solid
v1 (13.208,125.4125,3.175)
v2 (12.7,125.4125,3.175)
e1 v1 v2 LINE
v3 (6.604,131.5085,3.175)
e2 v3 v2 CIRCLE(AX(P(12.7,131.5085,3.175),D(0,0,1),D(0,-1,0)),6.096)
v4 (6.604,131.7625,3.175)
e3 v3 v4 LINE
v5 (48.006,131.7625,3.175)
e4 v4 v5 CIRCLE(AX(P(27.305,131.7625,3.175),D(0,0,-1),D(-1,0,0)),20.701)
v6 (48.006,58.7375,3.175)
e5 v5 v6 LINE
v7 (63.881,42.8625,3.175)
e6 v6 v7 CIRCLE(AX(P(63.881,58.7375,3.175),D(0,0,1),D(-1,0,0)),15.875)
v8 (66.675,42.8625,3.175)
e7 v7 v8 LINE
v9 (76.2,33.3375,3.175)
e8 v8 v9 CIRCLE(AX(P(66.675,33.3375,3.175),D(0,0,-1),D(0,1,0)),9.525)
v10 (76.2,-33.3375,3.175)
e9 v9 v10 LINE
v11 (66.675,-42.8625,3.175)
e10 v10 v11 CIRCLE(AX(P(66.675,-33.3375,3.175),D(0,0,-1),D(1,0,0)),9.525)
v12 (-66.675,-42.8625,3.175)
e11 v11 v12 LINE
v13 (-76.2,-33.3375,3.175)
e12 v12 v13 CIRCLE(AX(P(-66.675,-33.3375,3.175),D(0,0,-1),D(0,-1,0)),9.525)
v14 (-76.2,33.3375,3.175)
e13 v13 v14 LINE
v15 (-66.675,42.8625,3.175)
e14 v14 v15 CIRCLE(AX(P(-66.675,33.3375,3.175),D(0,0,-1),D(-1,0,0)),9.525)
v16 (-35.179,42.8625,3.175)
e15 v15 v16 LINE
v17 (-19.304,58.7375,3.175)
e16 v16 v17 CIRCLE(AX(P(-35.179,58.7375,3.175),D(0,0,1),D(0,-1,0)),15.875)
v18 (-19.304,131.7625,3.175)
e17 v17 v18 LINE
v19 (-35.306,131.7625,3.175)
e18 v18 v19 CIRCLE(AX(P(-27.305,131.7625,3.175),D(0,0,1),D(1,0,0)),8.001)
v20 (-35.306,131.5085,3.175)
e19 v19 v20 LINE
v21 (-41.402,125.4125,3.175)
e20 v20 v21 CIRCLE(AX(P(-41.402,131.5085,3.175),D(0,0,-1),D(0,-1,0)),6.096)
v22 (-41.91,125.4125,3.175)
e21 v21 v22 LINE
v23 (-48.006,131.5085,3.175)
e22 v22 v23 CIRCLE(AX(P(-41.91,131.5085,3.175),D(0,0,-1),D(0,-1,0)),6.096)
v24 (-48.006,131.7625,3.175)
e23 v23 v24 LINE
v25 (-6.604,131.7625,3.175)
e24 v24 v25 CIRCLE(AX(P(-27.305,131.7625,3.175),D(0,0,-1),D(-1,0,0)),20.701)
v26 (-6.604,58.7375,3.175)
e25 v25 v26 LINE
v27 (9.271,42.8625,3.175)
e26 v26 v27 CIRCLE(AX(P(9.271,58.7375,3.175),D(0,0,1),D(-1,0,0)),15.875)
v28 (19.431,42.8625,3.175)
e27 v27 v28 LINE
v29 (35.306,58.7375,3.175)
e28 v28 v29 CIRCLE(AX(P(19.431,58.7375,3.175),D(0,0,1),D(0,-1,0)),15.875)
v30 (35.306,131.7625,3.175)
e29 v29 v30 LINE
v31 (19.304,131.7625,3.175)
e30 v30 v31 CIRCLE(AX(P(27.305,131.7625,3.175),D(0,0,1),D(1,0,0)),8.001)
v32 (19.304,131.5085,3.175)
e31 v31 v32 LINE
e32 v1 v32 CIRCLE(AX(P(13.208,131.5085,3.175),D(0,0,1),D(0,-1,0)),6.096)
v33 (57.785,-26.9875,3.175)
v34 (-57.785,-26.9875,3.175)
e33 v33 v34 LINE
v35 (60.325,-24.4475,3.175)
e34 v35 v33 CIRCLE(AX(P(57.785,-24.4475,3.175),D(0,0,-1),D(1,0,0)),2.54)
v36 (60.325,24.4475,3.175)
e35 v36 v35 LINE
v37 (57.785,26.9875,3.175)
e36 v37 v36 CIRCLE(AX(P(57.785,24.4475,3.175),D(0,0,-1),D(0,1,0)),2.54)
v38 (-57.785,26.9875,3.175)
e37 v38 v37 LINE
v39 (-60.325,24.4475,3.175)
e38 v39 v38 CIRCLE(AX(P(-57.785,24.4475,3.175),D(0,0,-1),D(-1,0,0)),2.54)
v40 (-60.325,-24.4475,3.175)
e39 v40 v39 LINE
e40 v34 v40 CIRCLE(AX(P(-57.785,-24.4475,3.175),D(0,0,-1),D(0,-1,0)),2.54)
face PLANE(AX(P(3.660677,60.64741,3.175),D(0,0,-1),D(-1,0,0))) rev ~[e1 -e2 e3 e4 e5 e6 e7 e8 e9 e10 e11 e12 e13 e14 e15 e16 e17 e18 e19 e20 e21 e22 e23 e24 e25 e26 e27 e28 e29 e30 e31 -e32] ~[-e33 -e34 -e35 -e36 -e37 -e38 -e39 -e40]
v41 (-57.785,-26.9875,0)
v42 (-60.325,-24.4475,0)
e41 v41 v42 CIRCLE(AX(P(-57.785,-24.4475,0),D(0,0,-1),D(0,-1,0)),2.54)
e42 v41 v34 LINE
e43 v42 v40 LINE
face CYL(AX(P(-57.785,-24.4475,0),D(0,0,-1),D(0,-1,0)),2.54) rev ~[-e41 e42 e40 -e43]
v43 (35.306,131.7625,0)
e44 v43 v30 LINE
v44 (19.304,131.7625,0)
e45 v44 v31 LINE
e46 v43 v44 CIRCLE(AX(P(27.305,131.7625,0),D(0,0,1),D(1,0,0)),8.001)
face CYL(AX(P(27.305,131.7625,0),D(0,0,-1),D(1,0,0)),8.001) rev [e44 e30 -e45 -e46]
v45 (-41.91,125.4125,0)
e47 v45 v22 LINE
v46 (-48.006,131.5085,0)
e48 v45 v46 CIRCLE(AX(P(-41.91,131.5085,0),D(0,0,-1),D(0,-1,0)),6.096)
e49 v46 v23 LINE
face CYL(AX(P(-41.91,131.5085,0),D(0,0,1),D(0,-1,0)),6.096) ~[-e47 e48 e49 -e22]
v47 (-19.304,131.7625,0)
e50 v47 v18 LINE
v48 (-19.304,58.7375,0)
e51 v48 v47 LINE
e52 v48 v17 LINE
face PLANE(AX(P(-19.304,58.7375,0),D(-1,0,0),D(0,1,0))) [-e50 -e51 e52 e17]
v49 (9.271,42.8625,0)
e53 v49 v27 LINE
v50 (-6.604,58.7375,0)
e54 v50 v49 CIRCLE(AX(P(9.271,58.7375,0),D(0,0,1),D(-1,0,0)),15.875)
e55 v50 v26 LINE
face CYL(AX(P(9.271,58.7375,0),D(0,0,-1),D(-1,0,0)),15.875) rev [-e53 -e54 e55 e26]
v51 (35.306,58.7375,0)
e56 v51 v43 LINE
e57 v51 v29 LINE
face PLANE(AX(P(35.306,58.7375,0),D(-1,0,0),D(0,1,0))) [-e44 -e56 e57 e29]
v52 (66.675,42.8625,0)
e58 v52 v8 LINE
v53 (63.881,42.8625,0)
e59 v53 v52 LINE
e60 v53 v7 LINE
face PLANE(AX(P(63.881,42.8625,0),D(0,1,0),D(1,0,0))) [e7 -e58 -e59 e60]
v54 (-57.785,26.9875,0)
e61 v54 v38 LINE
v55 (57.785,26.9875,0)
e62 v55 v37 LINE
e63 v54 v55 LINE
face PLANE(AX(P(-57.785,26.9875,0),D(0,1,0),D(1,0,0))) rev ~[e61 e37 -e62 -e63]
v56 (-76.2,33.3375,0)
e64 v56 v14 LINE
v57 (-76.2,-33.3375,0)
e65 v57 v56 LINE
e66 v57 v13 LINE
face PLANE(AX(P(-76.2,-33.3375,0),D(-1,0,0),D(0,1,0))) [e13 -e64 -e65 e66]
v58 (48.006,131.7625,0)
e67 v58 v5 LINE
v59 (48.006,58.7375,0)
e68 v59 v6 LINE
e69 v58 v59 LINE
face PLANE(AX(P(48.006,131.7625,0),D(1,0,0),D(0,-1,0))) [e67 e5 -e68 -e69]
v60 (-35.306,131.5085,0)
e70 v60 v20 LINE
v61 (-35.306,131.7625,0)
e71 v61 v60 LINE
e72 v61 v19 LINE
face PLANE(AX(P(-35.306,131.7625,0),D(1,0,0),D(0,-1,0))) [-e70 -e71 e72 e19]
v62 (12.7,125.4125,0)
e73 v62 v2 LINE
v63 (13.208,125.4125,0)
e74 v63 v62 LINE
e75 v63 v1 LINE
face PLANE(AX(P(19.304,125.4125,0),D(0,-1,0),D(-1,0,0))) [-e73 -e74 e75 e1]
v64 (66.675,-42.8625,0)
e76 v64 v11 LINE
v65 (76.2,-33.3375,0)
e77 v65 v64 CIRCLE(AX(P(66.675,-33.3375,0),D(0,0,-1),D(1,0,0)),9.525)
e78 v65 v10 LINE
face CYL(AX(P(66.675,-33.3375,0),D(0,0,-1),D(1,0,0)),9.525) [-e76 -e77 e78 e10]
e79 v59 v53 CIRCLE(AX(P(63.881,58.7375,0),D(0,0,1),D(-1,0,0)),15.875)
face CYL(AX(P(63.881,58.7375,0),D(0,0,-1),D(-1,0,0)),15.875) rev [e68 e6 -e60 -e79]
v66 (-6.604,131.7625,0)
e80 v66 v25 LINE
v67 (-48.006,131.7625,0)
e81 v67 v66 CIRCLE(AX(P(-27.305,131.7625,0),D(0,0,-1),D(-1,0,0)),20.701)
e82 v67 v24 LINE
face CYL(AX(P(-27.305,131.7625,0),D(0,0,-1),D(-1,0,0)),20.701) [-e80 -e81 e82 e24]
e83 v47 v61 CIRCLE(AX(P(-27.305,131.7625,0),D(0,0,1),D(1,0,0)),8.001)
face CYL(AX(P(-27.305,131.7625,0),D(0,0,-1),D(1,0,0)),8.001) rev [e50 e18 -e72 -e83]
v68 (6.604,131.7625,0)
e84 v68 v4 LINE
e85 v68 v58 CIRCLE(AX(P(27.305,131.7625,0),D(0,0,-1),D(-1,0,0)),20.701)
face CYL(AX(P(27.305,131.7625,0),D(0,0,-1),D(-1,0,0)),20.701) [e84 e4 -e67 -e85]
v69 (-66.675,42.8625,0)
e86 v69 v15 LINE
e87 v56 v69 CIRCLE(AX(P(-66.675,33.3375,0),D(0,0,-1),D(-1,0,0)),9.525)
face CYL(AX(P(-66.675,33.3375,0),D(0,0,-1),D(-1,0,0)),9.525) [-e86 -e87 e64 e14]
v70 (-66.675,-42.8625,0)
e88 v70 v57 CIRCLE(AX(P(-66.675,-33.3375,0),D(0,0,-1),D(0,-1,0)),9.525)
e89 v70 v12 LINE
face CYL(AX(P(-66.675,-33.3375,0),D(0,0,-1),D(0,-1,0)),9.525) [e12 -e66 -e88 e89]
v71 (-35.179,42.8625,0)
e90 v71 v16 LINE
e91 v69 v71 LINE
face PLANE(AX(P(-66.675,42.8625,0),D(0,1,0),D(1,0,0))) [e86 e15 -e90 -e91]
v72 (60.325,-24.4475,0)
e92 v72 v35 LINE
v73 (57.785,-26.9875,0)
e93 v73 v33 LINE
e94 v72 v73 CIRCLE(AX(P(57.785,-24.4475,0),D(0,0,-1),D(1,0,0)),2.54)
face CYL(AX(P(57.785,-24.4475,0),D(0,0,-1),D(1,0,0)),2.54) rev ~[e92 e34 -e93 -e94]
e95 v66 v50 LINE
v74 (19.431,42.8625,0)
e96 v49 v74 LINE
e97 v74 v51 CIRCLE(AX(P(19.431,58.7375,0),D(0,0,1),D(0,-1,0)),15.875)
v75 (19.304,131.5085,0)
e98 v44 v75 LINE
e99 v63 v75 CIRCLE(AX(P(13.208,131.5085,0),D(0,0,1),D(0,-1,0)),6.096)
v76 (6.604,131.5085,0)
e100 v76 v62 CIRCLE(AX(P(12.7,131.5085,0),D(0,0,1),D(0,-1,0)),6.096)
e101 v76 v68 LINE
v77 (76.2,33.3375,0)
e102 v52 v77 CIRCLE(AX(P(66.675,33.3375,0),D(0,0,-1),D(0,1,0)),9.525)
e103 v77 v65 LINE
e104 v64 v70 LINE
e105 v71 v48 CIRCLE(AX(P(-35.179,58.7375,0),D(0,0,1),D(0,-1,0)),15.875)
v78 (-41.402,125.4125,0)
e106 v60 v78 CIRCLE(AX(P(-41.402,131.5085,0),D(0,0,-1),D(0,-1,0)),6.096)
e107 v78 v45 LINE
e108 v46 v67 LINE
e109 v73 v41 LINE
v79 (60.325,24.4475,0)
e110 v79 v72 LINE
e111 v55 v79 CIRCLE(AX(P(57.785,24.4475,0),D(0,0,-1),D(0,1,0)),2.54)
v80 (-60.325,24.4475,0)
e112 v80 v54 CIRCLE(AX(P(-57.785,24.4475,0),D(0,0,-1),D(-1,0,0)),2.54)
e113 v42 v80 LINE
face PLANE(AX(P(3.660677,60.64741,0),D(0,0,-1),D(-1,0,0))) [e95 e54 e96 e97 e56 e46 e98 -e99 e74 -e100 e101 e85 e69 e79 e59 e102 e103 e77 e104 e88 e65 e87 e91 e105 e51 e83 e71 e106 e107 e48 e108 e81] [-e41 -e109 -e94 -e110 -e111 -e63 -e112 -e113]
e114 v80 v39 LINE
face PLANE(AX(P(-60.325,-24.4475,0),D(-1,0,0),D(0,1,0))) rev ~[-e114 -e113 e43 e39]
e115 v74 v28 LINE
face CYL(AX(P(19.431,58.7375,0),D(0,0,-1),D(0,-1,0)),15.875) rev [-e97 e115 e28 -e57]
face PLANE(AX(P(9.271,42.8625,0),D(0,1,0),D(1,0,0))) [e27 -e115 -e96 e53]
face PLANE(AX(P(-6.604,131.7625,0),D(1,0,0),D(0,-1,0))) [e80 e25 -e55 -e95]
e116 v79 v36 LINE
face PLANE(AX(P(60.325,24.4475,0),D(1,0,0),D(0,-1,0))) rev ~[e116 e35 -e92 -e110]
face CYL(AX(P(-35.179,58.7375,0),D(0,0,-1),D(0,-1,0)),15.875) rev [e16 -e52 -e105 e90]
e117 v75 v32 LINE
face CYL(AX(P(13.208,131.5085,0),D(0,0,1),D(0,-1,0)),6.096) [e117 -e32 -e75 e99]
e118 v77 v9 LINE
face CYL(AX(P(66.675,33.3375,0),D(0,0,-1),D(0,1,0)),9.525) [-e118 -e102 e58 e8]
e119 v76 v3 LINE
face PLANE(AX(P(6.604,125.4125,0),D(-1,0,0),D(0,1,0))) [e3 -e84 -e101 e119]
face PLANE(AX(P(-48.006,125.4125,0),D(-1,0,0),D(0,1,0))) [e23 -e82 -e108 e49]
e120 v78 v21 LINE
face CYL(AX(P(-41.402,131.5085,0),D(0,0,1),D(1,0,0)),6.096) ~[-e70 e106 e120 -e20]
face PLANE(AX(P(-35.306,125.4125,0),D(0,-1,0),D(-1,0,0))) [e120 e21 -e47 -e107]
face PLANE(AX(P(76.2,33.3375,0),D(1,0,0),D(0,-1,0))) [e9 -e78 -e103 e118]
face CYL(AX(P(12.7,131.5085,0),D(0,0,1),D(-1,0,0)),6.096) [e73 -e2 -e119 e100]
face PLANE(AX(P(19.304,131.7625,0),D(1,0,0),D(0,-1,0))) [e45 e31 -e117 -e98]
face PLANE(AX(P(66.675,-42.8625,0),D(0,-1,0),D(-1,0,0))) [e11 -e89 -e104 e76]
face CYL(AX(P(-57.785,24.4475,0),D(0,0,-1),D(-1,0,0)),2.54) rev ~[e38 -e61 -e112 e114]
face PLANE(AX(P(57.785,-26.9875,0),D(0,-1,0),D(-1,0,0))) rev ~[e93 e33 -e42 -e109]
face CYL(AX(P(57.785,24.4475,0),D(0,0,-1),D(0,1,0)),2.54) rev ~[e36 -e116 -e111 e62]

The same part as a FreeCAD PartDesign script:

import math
import FreeCAD as App
import Part
import Sketcher

V = App.Vector
Q = App.Units.Quantity


def edges_at(feature, points):
    """Names of the edges that pass closest to the given points."""
    edges = feature.Shape.Edges
    near = lambda p: min(range(len(edges)), key=lambda i: edges[i].distToShape(Part.Vertex(*p))[0])
    return sorted({f"Edge{near(p) + 1}" for p in points})

doc = App.newDocument("Part")
params = doc.addObject("Spreadsheet::Sheet", "Params")
for row, (alias, value) in enumerate([
    ("sketch1_radius", "0.1 in"),
    ("sketch1_width", "0.5 in"),
    ("sketch1_width2", "0.4 in"),
    ("sketch1_radius2", "0.375 in"),
    ("sketch1_radius3", "0.625 in"),
    ("pad1_length", "0.125 in"),
    ("fillet_radius", "0.24 in"),
], start=1):
    params.set(f"A{row}", alias)
    params.set(f"B{row}", "=" + value)
    params.setAlias(f"B{row}", alias)

body = doc.addObject("PartDesign::Body", "Body")

# Sketch on XY plane
sketch1 = body.newObject("Sketcher::SketchObject", "Sketch")
sketch1.AttachmentSupport = (doc.getObject("XY_Plane"), [""])
sketch1.MapMode = "FlatFace"
sketch1.addGeometry(Part.LineSegment(V(-35.2, 42.9, 0), V(-66.7, 42.9, 0)), False)
sketch1.addGeometry(Part.ArcOfCircle(Part.Circle(V(-66.7, 33.3, 0), V(0, 0, 1), 9.5), math.radians(90), math.radians(180)), False)
sketch1.addGeometry(Part.LineSegment(V(-76.2, 33.3, 0), V(-76.2, -33.3, 0)), False)
sketch1.addGeometry(Part.ArcOfCircle(Part.Circle(V(-66.7, -33.3, 0), V(0, 0, 1), 9.5), math.radians(180), math.radians(270)), False)
sketch1.addGeometry(Part.LineSegment(V(-66.7, -42.9, 0), V(66.7, -42.9, 0)), False)
sketch1.addGeometry(Part.ArcOfCircle(Part.Circle(V(66.7, -33.3, 0), V(0, 0, 1), 9.5), math.radians(-90), math.radians(0)), False)
sketch1.addGeometry(Part.LineSegment(V(76.2, -33.3, 0), V(76.2, 33.3, 0)), False)
sketch1.addGeometry(Part.ArcOfCircle(Part.Circle(V(66.7, 33.3, 0), V(0, 0, 1), 9.5), math.radians(0), math.radians(90)), False)
sketch1.addGeometry(Part.LineSegment(V(66.7, 42.9, 0), V(63.9, 42.9, 0)), False)
sketch1.addGeometry(Part.ArcOfCircle(Part.Circle(V(63.9, 58.7, 0), V(0, 0, 1), 15.9), math.radians(-180), math.radians(-90)), False)
sketch1.addGeometry(Part.LineSegment(V(48, 58.7, 0), V(48, 131.8, 0)), False)
sketch1.addGeometry(Part.ArcOfCircle(Part.Circle(V(27.3, 131.8, 0), V(0, 0, 1), 20.7), math.radians(0), math.radians(180)), False)
sketch1.addGeometry(Part.LineSegment(V(6.6, 131.8, 0), V(6.6, 125.4, 0)), False)
sketch1.addGeometry(Part.LineSegment(V(6.6, 125.4, 0), V(19.3, 125.4, 0)), False)
sketch1.addGeometry(Part.LineSegment(V(19.3, 125.4, 0), V(19.3, 131.8, 0)), False)
sketch1.addGeometry(Part.ArcOfCircle(Part.Circle(V(27.3, 131.8, 0), V(0, 0, 1), 8), math.radians(0), math.radians(180)), False)
sketch1.addGeometry(Part.LineSegment(V(35.3, 131.8, 0), V(35.3, 58.7, 0)), False)
sketch1.addGeometry(Part.ArcOfCircle(Part.Circle(V(19.4, 58.7, 0), V(0, 0, 1), 15.9), math.radians(-90), math.radians(0)), False)
sketch1.addGeometry(Part.LineSegment(V(19.4, 42.9, 0), V(9.3, 42.9, 0)), False)
sketch1.addGeometry(Part.ArcOfCircle(Part.Circle(V(9.3, 58.7, 0), V(0, 0, 1), 15.9), math.radians(-180), math.radians(-90)), False)
sketch1.addGeometry(Part.LineSegment(V(-6.6, 58.7, 0), V(-6.6, 131.8, 0)), False)
sketch1.addGeometry(Part.ArcOfCircle(Part.Circle(V(-27.3, 131.8, 0), V(0, 0, 1), 20.7), math.radians(0), math.radians(180)), False)
sketch1.addGeometry(Part.LineSegment(V(-48, 131.8, 0), V(-48, 125.4, 0)), False)
sketch1.addGeometry(Part.LineSegment(V(-48, 125.4, 0), V(-35.3, 125.4, 0)), False)
sketch1.addGeometry(Part.LineSegment(V(-35.3, 125.4, 0), V(-35.3, 131.8, 0)), False)
sketch1.addGeometry(Part.ArcOfCircle(Part.Circle(V(-27.3, 131.8, 0), V(0, 0, 1), 8), math.radians(0), math.radians(180)), False)
sketch1.addGeometry(Part.LineSegment(V(-19.3, 131.8, 0), V(-19.3, 58.7, 0)), False)
sketch1.addGeometry(Part.ArcOfCircle(Part.Circle(V(-35.2, 58.7, 0), V(0, 0, 1), 15.9), math.radians(-90), math.radians(0)), False)
sketch1.addGeometry(Part.LineSegment(V(-57.8, 27, 0), V(57.8, 27, 0)), False)
sketch1.addGeometry(Part.ArcOfCircle(Part.Circle(V(57.8, 24.4, 0), V(0, 0, 1), 2.5), math.radians(0), math.radians(90)), False)
sketch1.addGeometry(Part.LineSegment(V(60.3, 24.4, 0), V(60.3, -24.4, 0)), False)
sketch1.addGeometry(Part.ArcOfCircle(Part.Circle(V(57.8, -24.4, 0), V(0, 0, 1), 2.5), math.radians(-90), math.radians(0)), False)
sketch1.addGeometry(Part.LineSegment(V(57.8, -27, 0), V(-57.8, -27, 0)), False)
sketch1.addGeometry(Part.ArcOfCircle(Part.Circle(V(-57.8, -24.4, 0), V(0, 0, 1), 2.5), math.radians(-180), math.radians(-90)), False)
sketch1.addGeometry(Part.LineSegment(V(-60.3, -24.4, 0), V(-60.3, 24.4, 0)), False)
sketch1.addGeometry(Part.ArcOfCircle(Part.Circle(V(-57.8, 24.4, 0), V(0, 0, 1), 2.5), math.radians(90), math.radians(180)), False)
sketch1.addConstraint(Sketcher.Constraint("Tangent", 0, 2, 1, 1))
sketch1.addConstraint(Sketcher.Constraint("Tangent", 1, 2, 2, 1))
sketch1.addConstraint(Sketcher.Constraint("Tangent", 2, 2, 3, 1))
sketch1.addConstraint(Sketcher.Constraint("Tangent", 3, 2, 4, 1))
sketch1.addConstraint(Sketcher.Constraint("Tangent", 4, 2, 5, 1))
sketch1.addConstraint(Sketcher.Constraint("Tangent", 5, 2, 6, 1))
sketch1.addConstraint(Sketcher.Constraint("Tangent", 6, 2, 7, 1))
sketch1.addConstraint(Sketcher.Constraint("Tangent", 7, 2, 8, 1))
sketch1.addConstraint(Sketcher.Constraint("Tangent", 8, 2, 9, 2))
sketch1.addConstraint(Sketcher.Constraint("Tangent", 9, 1, 10, 1))
sketch1.addConstraint(Sketcher.Constraint("Tangent", 10, 2, 11, 1))
sketch1.addConstraint(Sketcher.Constraint("Tangent", 11, 2, 12, 1))
sketch1.addConstraint(Sketcher.Constraint("Coincident", 12, 2, 13, 1))
sketch1.addConstraint(Sketcher.Constraint("Coincident", 13, 2, 14, 1))
sketch1.addConstraint(Sketcher.Constraint("Tangent", 14, 2, 15, 2))
sketch1.addConstraint(Sketcher.Constraint("Tangent", 15, 1, 16, 1))
sketch1.addConstraint(Sketcher.Constraint("Tangent", 16, 2, 17, 2))
sketch1.addConstraint(Sketcher.Constraint("Tangent", 17, 1, 18, 1))
sketch1.addConstraint(Sketcher.Constraint("Tangent", 18, 2, 19, 2))
sketch1.addConstraint(Sketcher.Constraint("Tangent", 19, 1, 20, 1))
sketch1.addConstraint(Sketcher.Constraint("Tangent", 20, 2, 21, 1))
sketch1.addConstraint(Sketcher.Constraint("Tangent", 21, 2, 22, 1))
sketch1.addConstraint(Sketcher.Constraint("Coincident", 22, 2, 23, 1))
sketch1.addConstraint(Sketcher.Constraint("Coincident", 23, 2, 24, 1))
sketch1.addConstraint(Sketcher.Constraint("Tangent", 24, 2, 25, 2))
sketch1.addConstraint(Sketcher.Constraint("Tangent", 25, 1, 26, 1))
sketch1.addConstraint(Sketcher.Constraint("Tangent", 26, 2, 27, 2))
sketch1.addConstraint(Sketcher.Constraint("Tangent", 27, 1, 0, 1))
sketch1.addConstraint(Sketcher.Constraint("Tangent", 28, 2, 29, 2))
sketch1.addConstraint(Sketcher.Constraint("Tangent", 29, 1, 30, 1))
sketch1.addConstraint(Sketcher.Constraint("Tangent", 30, 2, 31, 2))
sketch1.addConstraint(Sketcher.Constraint("Tangent", 31, 1, 32, 1))
sketch1.addConstraint(Sketcher.Constraint("Tangent", 32, 2, 33, 2))
sketch1.addConstraint(Sketcher.Constraint("Tangent", 33, 1, 34, 1))
sketch1.addConstraint(Sketcher.Constraint("Tangent", 34, 2, 35, 2))
sketch1.addConstraint(Sketcher.Constraint("Tangent", 35, 1, 28, 1))
sketch1.addConstraint(Sketcher.Constraint("Horizontal", 0))
sketch1.addConstraint(Sketcher.Constraint("Vertical", 2))
sketch1.addConstraint(Sketcher.Constraint("Horizontal", 4))
sketch1.addConstraint(Sketcher.Constraint("Vertical", 6))
sketch1.addConstraint(Sketcher.Constraint("Horizontal", 8))
sketch1.addConstraint(Sketcher.Constraint("Vertical", 10))
sketch1.addConstraint(Sketcher.Constraint("Vertical", 12))
sketch1.addConstraint(Sketcher.Constraint("Horizontal", 13))
sketch1.addConstraint(Sketcher.Constraint("Vertical", 14))
sketch1.addConstraint(Sketcher.Constraint("Vertical", 16))
sketch1.addConstraint(Sketcher.Constraint("Horizontal", 18))
sketch1.addConstraint(Sketcher.Constraint("Vertical", 20))
sketch1.addConstraint(Sketcher.Constraint("Vertical", 22))
sketch1.addConstraint(Sketcher.Constraint("Horizontal", 23))
sketch1.addConstraint(Sketcher.Constraint("Vertical", 24))
sketch1.addConstraint(Sketcher.Constraint("Vertical", 26))
sketch1.addConstraint(Sketcher.Constraint("Horizontal", 28))
sketch1.addConstraint(Sketcher.Constraint("Vertical", 30))
sketch1.addConstraint(Sketcher.Constraint("Horizontal", 32))
sketch1.addConstraint(Sketcher.Constraint("Vertical", 34))
sketch1.addConstraint(Sketcher.Constraint("Coincident", 15, 3, 11, 3))
sketch1.addConstraint(Sketcher.Constraint("Coincident", 25, 3, 21, 3))
sketch1.addConstraint(Sketcher.Constraint("Equal", 1, 3))
sketch1.addConstraint(Sketcher.Constraint("Equal", 3, 5))
sketch1.addConstraint(Sketcher.Constraint("Equal", 5, 7))
sketch1.addConstraint(Sketcher.Constraint("Equal", 9, 17))
sketch1.addConstraint(Sketcher.Constraint("Equal", 17, 19))
sketch1.addConstraint(Sketcher.Constraint("Equal", 11, 21))
sketch1.addConstraint(Sketcher.Constraint("Equal", 15, 25))
sketch1.addConstraint(Sketcher.Constraint("Equal", 19, 27))
sketch1.addConstraint(Sketcher.Constraint("Equal", 29, 31))
sketch1.addConstraint(Sketcher.Constraint("Equal", 31, 33))
sketch1.addConstraint(Sketcher.Constraint("Equal", 33, 35))
sketch1.addConstraint(Sketcher.Constraint("Symmetric", 1, 3, 5, 3, -1, 1))
sketch1.addConstraint(Sketcher.Constraint("Symmetric", 29, 3, 33, 3, -1, 1))
sketch1.addConstraint(Sketcher.Constraint("Symmetric", 11, 3, 21, 3, -2))
sketch1.addConstraint(Sketcher.Constraint("Horizontal", 1, 3, 7, 3))
sketch1.addConstraint(Sketcher.Constraint("Horizontal", 9, 3, 17, 3))
sketch1.addConstraint(Sketcher.Constraint("Horizontal", 13, 2, 22, 2))
sketch1.addConstraint(Sketcher.Constraint("Radius", 29, Q("0.1 in")))
sketch1.addConstraint(Sketcher.Constraint("DistanceX", 13, 1, 13, 2, Q("0.5 in")))
sketch1.addConstraint(Sketcher.Constraint("DistanceX", 18, 2, 18, 1, Q("0.4 in")))
sketch1.addConstraint(Sketcher.Constraint("DistanceX", 1, 2, -1, 1, Q("3 in")))
sketch1.addConstraint(Sketcher.Constraint("Radius", 1, Q("0.375 in")))
sketch1.addConstraint(Sketcher.Constraint("Radius", 9, Q("0.625 in")))
sketch1.addConstraint(Sketcher.Constraint("Radius", 11, Q("0.815 in")))
sketch1.addConstraint(Sketcher.Constraint("DistanceY", 3, 3, 0, 2, Q("3 in")))
sketch1.addConstraint(Sketcher.Constraint("DistanceX", 28, 1, 28, 2, Q("4.55 in")))
sketch1.addConstraint(Sketcher.Constraint("DistanceY", 12, 2, 12, 1, Q("0.25 in")))
sketch1.addConstraint(Sketcher.Constraint("DistanceY", 5, 3, 11, 3, Q("6.5 in")))
sketch1.addConstraint(Sketcher.Constraint("DistanceY", 30, 2, 30, 1, Q("1.925 in")))
sketch1.setExpression("Constraints[75]", "Params.sketch1_radius")
sketch1.setExpression("Constraints[76]", "Params.sketch1_width")
sketch1.setExpression("Constraints[77]", "Params.sketch1_width2")
sketch1.setExpression("Constraints[79]", "Params.sketch1_radius2")
sketch1.setExpression("Constraints[80]", "Params.sketch1_radius3")
pad1 = body.newObject("PartDesign::Pad", "Pad")
pad1.Profile = sketch1
pad1.setExpression("Length", "Params.pad1_length")
doc.recompute()

fillet = body.newObject("PartDesign::Fillet", "Fillet")
fillet.Base = (pad1, edges_at(pad1, [
    (-35.306, 125.412, 1.587),
    (-48.006, 125.412, 1.587),
    (19.304, 125.412, 1.587),
    (6.604, 125.412, 1.587),
]))
fillet.setExpression("Radius", "Params.fillet_radius")

doc.recompute()
